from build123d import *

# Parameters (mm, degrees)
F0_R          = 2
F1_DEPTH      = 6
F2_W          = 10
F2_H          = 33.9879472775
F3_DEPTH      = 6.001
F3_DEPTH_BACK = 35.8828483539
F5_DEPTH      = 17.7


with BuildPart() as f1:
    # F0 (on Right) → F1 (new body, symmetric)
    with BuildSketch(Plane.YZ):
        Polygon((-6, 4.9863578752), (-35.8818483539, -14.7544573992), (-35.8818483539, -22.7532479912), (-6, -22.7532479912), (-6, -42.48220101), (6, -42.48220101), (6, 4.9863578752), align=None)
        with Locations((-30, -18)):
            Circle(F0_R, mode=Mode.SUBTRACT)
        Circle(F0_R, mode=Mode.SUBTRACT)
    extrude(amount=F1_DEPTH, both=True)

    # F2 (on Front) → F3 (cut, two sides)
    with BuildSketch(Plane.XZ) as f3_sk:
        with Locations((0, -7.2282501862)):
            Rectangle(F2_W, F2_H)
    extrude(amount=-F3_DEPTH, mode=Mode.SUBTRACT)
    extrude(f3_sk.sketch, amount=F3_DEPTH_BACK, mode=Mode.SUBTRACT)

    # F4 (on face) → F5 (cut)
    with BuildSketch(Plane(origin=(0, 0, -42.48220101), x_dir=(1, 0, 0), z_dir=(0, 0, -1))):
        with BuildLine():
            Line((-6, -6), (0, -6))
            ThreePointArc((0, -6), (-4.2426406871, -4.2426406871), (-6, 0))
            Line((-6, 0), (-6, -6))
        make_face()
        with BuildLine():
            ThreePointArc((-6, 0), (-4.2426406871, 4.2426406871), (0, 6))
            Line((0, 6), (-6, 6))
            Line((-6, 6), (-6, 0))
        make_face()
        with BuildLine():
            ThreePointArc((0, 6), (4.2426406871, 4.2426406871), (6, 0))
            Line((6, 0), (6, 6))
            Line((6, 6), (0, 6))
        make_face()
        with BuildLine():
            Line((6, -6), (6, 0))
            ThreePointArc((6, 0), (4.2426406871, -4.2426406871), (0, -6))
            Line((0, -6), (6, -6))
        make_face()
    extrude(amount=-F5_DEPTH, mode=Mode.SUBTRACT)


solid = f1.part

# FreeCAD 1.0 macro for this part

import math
import FreeCAD as App
import Part
import Sketcher


def add_polygon(sketch, points):
    """Adds a closed chain of lines whose ends are joined by coincident constraints."""
    first, n = sketch.GeometryCount, len(points)
    for a, b in zip(points, points[1:] + points[:1]):
        sketch.addGeometry(Part.LineSegment(App.Vector(*a, 0), App.Vector(*b, 0)), False)
    for i in range(n):
        sketch.addConstraint(Sketcher.Constraint("Coincident", first + i, 2, first + (i + 1) % n, 1))

doc = App.newDocument("Part")
body = doc.addObject("PartDesign::Body", "Body")

sketch1 = body.newObject("Sketcher::SketchObject", "Sketch")
sketch1.AttachmentSupport = (doc.getObject("YZ_Plane"), [""])
sketch1.MapMode = "FlatFace"
add_polygon(sketch1, [(-6, 5), (-35.9, -14.8), (-35.9, -22.8), (-6, -22.8), (-6, -42.5), (6, -42.5), (6, 5)])
sketch1.addGeometry(Part.Circle(App.Vector(-30, -18, 0), App.Vector(0, 0, 1), 2), False)
sketch1.addGeometry(Part.Circle(App.Vector(0, 0, 0), App.Vector(0, 0, 1), 2), False)
sketch1.addConstraint(Sketcher.Constraint("Vertical", 1))
sketch1.addConstraint(Sketcher.Constraint("Horizontal", 2))
sketch1.addConstraint(Sketcher.Constraint("Vertical", 3))
sketch1.addConstraint(Sketcher.Constraint("Horizontal", 4))
sketch1.addConstraint(Sketcher.Constraint("Vertical", 5))
sketch1.addConstraint(Sketcher.Constraint("Horizontal", 6))
sketch1.addConstraint(Sketcher.Constraint("Coincident", 8, 3, -1, 1))
sketch1.addConstraint(Sketcher.Constraint("Equal", 7, 8))
sketch1.addConstraint(Sketcher.Constraint("Vertical", 3, 2, 6, 2))
sketch1.addConstraint(Sketcher.Constraint("Diameter", 7, 4.0))
sketch1.addConstraint(Sketcher.Constraint("DistanceX", 4, 1, 4, 2, 12.0))
sketch1.addConstraint(Sketcher.Constraint("DistanceX", 7, 3, -1, 1, 30.0))
sketch1.addConstraint(Sketcher.Constraint("DistanceY", 7, 3, -1, 1, 18.0))
sketch1.addConstraint(Sketcher.Constraint("DistanceX", 2, 2, -1, 1, 6.0))
sketch1.addConstraint(Sketcher.Constraint("DistanceX", 2, 1, 2, 2, 29.881848))
sketch1.addConstraint(Sketcher.Constraint("DistanceY", 1, 2, 1, 1, 7.998791))
sketch1.addConstraint(Sketcher.Constraint("DistanceY", 5, 1, 5, 2, 47.468559))
sketch1.addConstraint(Sketcher.Constraint("DistanceY", 3, 2, -1, 1, 42.482201))
sketch1.addConstraint(Sketcher.Constraint("Distance", 0, 35.813749))
pad1 = body.newObject("PartDesign::Pad", "Pad")
pad1.Profile = sketch1
pad1.Length = 12
pad1.Midplane = True

sketch2 = body.newObject("Sketcher::SketchObject", "Sketch001")
sketch2.AttachmentSupport = (doc.getObject("XZ_Plane"), [""])
sketch2.MapMode = "FlatFace"
add_polygon(sketch2, [(-5, 10), (-5, -24), (5, -24), (5, 10)])
sketch2.addConstraint(Sketcher.Constraint("Vertical", 0))
sketch2.addConstraint(Sketcher.Constraint("Horizontal", 1))
sketch2.addConstraint(Sketcher.Constraint("Vertical", 2))
sketch2.addConstraint(Sketcher.Constraint("Horizontal", 3))
sketch2.addConstraint(Sketcher.Constraint("DistanceX", 1, 1, 1, 2, 10.0))
sketch2.addConstraint(Sketcher.Constraint("DistanceX", 0, 2, -1, 1, 5.0))
sketch2.addConstraint(Sketcher.Constraint("DistanceY", 0, 2, 0, 1, 33.987947))
sketch2.addConstraint(Sketcher.Constraint("DistanceY", 0, 2, -1, 1, 24.222224))
pocket1 = body.newObject("PartDesign::Pocket", "Pocket")
pocket1.Profile = sketch2
pocket1.Type = "ThroughAll"
pocket1.Midplane = True

sketch3 = body.newObject("Sketcher::SketchObject", "Sketch002")
sketch3.AttachmentSupport = (doc.getObject("XY_Plane"), [""])
sketch3.MapMode = "FlatFace"
sketch3.AttachmentOffset = App.Placement(App.Vector(0, 0, -42.482201), App.Rotation())
sketch3.addGeometry(Part.LineSegment(App.Vector(-6, 6, 0), App.Vector(0, 6, 0)), False)
sketch3.addGeometry(Part.ArcOfCircle(Part.Circle(App.Vector(0, 0, 0), App.Vector(0, 0, 1), 6), math.radians(90), math.radians(180)), False)
sketch3.addGeometry(Part.LineSegment(App.Vector(-6, 0, 0), App.Vector(-6, 6, 0)), False)
sketch3.addGeometry(Part.ArcOfCircle(Part.Circle(App.Vector(0, 0, 0), App.Vector(0, 0, 1), 6), math.radians(180), math.radians(270)), False)
sketch3.addGeometry(Part.LineSegment(App.Vector(0, -6, 0), App.Vector(-6, -6, 0)), False)
sketch3.addGeometry(Part.LineSegment(App.Vector(-6, -6, 0), App.Vector(-6, 0, 0)), False)
sketch3.addGeometry(Part.ArcOfCircle(Part.Circle(App.Vector(0, 0, 0), App.Vector(0, 0, 1), 6), math.radians(-90), math.radians(0)), False)
sketch3.addGeometry(Part.LineSegment(App.Vector(6, 0, 0), App.Vector(6, -6, 0)), False)
sketch3.addGeometry(Part.LineSegment(App.Vector(6, -6, 0), App.Vector(0, -6, 0)), False)
sketch3.addGeometry(Part.LineSegment(App.Vector(6, 6, 0), App.Vector(6, 0, 0)), False)
sketch3.addGeometry(Part.ArcOfCircle(Part.Circle(App.Vector(0, 0, 0), App.Vector(0, 0, 1), 6), math.radians(0), math.radians(90)), False)
sketch3.addGeometry(Part.LineSegment(App.Vector(0, 6, 0), App.Vector(6, 6, 0)), False)
sketch3.addConstraint(Sketcher.Constraint("Tangent", 0, 2, 1, 1))
sketch3.addConstraint(Sketcher.Constraint("Tangent", 1, 2, 2, 1))
sketch3.addConstraint(Sketcher.Constraint("Coincident", 2, 2, 0, 1))
sketch3.addConstraint(Sketcher.Constraint("Tangent", 3, 2, 4, 1))
sketch3.addConstraint(Sketcher.Constraint("Coincident", 4, 2, 5, 1))
sketch3.addConstraint(Sketcher.Constraint("Tangent", 5, 2, 3, 1))
sketch3.addConstraint(Sketcher.Constraint("Tangent", 6, 2, 7, 1))
sketch3.addConstraint(Sketcher.Constraint("Coincident", 7, 2, 8, 1))
sketch3.addConstraint(Sketcher.Constraint("Tangent", 8, 2, 6, 1))
sketch3.addConstraint(Sketcher.Constraint("Tangent", 9, 2, 10, 1))
sketch3.addConstraint(Sketcher.Constraint("Tangent", 10, 2, 11, 1))
sketch3.addConstraint(Sketcher.Constraint("Coincident", 11, 2, 9, 1))
sketch3.addConstraint(Sketcher.Constraint("Horizontal", 0))
sketch3.addConstraint(Sketcher.Constraint("Vertical", 2))
sketch3.addConstraint(Sketcher.Constraint("Horizontal", 4))
sketch3.addConstraint(Sketcher.Constraint("Vertical", 5))
sketch3.addConstraint(Sketcher.Constraint("Vertical", 7))
sketch3.addConstraint(Sketcher.Constraint("Horizontal", 8))
sketch3.addConstraint(Sketcher.Constraint("Vertical", 9))
sketch3.addConstraint(Sketcher.Constraint("Horizontal", 11))
sketch3.addConstraint(Sketcher.Constraint("Coincident", 1, 3, -1, 1))
sketch3.addConstraint(Sketcher.Constraint("Coincident", 3, 3, -1, 1))
sketch3.addConstraint(Sketcher.Constraint("Coincident", 6, 3, -1, 1))
sketch3.addConstraint(Sketcher.Constraint("Coincident", 10, 3, -1, 1))
sketch3.addConstraint(Sketcher.Constraint("Equal", 1, 3))
sketch3.addConstraint(Sketcher.Constraint("Equal", 3, 6))
sketch3.addConstraint(Sketcher.Constraint("Equal", 6, 10))
sketch3.addConstraint(Sketcher.Constraint("Radius", 1, 6.0))
pocket2 = body.newObject("PartDesign::Pocket", "Pocket001")
pocket2.Profile = sketch3
pocket2.Length = 17.7
pocket2.Reversed = True

doc.recompute()
